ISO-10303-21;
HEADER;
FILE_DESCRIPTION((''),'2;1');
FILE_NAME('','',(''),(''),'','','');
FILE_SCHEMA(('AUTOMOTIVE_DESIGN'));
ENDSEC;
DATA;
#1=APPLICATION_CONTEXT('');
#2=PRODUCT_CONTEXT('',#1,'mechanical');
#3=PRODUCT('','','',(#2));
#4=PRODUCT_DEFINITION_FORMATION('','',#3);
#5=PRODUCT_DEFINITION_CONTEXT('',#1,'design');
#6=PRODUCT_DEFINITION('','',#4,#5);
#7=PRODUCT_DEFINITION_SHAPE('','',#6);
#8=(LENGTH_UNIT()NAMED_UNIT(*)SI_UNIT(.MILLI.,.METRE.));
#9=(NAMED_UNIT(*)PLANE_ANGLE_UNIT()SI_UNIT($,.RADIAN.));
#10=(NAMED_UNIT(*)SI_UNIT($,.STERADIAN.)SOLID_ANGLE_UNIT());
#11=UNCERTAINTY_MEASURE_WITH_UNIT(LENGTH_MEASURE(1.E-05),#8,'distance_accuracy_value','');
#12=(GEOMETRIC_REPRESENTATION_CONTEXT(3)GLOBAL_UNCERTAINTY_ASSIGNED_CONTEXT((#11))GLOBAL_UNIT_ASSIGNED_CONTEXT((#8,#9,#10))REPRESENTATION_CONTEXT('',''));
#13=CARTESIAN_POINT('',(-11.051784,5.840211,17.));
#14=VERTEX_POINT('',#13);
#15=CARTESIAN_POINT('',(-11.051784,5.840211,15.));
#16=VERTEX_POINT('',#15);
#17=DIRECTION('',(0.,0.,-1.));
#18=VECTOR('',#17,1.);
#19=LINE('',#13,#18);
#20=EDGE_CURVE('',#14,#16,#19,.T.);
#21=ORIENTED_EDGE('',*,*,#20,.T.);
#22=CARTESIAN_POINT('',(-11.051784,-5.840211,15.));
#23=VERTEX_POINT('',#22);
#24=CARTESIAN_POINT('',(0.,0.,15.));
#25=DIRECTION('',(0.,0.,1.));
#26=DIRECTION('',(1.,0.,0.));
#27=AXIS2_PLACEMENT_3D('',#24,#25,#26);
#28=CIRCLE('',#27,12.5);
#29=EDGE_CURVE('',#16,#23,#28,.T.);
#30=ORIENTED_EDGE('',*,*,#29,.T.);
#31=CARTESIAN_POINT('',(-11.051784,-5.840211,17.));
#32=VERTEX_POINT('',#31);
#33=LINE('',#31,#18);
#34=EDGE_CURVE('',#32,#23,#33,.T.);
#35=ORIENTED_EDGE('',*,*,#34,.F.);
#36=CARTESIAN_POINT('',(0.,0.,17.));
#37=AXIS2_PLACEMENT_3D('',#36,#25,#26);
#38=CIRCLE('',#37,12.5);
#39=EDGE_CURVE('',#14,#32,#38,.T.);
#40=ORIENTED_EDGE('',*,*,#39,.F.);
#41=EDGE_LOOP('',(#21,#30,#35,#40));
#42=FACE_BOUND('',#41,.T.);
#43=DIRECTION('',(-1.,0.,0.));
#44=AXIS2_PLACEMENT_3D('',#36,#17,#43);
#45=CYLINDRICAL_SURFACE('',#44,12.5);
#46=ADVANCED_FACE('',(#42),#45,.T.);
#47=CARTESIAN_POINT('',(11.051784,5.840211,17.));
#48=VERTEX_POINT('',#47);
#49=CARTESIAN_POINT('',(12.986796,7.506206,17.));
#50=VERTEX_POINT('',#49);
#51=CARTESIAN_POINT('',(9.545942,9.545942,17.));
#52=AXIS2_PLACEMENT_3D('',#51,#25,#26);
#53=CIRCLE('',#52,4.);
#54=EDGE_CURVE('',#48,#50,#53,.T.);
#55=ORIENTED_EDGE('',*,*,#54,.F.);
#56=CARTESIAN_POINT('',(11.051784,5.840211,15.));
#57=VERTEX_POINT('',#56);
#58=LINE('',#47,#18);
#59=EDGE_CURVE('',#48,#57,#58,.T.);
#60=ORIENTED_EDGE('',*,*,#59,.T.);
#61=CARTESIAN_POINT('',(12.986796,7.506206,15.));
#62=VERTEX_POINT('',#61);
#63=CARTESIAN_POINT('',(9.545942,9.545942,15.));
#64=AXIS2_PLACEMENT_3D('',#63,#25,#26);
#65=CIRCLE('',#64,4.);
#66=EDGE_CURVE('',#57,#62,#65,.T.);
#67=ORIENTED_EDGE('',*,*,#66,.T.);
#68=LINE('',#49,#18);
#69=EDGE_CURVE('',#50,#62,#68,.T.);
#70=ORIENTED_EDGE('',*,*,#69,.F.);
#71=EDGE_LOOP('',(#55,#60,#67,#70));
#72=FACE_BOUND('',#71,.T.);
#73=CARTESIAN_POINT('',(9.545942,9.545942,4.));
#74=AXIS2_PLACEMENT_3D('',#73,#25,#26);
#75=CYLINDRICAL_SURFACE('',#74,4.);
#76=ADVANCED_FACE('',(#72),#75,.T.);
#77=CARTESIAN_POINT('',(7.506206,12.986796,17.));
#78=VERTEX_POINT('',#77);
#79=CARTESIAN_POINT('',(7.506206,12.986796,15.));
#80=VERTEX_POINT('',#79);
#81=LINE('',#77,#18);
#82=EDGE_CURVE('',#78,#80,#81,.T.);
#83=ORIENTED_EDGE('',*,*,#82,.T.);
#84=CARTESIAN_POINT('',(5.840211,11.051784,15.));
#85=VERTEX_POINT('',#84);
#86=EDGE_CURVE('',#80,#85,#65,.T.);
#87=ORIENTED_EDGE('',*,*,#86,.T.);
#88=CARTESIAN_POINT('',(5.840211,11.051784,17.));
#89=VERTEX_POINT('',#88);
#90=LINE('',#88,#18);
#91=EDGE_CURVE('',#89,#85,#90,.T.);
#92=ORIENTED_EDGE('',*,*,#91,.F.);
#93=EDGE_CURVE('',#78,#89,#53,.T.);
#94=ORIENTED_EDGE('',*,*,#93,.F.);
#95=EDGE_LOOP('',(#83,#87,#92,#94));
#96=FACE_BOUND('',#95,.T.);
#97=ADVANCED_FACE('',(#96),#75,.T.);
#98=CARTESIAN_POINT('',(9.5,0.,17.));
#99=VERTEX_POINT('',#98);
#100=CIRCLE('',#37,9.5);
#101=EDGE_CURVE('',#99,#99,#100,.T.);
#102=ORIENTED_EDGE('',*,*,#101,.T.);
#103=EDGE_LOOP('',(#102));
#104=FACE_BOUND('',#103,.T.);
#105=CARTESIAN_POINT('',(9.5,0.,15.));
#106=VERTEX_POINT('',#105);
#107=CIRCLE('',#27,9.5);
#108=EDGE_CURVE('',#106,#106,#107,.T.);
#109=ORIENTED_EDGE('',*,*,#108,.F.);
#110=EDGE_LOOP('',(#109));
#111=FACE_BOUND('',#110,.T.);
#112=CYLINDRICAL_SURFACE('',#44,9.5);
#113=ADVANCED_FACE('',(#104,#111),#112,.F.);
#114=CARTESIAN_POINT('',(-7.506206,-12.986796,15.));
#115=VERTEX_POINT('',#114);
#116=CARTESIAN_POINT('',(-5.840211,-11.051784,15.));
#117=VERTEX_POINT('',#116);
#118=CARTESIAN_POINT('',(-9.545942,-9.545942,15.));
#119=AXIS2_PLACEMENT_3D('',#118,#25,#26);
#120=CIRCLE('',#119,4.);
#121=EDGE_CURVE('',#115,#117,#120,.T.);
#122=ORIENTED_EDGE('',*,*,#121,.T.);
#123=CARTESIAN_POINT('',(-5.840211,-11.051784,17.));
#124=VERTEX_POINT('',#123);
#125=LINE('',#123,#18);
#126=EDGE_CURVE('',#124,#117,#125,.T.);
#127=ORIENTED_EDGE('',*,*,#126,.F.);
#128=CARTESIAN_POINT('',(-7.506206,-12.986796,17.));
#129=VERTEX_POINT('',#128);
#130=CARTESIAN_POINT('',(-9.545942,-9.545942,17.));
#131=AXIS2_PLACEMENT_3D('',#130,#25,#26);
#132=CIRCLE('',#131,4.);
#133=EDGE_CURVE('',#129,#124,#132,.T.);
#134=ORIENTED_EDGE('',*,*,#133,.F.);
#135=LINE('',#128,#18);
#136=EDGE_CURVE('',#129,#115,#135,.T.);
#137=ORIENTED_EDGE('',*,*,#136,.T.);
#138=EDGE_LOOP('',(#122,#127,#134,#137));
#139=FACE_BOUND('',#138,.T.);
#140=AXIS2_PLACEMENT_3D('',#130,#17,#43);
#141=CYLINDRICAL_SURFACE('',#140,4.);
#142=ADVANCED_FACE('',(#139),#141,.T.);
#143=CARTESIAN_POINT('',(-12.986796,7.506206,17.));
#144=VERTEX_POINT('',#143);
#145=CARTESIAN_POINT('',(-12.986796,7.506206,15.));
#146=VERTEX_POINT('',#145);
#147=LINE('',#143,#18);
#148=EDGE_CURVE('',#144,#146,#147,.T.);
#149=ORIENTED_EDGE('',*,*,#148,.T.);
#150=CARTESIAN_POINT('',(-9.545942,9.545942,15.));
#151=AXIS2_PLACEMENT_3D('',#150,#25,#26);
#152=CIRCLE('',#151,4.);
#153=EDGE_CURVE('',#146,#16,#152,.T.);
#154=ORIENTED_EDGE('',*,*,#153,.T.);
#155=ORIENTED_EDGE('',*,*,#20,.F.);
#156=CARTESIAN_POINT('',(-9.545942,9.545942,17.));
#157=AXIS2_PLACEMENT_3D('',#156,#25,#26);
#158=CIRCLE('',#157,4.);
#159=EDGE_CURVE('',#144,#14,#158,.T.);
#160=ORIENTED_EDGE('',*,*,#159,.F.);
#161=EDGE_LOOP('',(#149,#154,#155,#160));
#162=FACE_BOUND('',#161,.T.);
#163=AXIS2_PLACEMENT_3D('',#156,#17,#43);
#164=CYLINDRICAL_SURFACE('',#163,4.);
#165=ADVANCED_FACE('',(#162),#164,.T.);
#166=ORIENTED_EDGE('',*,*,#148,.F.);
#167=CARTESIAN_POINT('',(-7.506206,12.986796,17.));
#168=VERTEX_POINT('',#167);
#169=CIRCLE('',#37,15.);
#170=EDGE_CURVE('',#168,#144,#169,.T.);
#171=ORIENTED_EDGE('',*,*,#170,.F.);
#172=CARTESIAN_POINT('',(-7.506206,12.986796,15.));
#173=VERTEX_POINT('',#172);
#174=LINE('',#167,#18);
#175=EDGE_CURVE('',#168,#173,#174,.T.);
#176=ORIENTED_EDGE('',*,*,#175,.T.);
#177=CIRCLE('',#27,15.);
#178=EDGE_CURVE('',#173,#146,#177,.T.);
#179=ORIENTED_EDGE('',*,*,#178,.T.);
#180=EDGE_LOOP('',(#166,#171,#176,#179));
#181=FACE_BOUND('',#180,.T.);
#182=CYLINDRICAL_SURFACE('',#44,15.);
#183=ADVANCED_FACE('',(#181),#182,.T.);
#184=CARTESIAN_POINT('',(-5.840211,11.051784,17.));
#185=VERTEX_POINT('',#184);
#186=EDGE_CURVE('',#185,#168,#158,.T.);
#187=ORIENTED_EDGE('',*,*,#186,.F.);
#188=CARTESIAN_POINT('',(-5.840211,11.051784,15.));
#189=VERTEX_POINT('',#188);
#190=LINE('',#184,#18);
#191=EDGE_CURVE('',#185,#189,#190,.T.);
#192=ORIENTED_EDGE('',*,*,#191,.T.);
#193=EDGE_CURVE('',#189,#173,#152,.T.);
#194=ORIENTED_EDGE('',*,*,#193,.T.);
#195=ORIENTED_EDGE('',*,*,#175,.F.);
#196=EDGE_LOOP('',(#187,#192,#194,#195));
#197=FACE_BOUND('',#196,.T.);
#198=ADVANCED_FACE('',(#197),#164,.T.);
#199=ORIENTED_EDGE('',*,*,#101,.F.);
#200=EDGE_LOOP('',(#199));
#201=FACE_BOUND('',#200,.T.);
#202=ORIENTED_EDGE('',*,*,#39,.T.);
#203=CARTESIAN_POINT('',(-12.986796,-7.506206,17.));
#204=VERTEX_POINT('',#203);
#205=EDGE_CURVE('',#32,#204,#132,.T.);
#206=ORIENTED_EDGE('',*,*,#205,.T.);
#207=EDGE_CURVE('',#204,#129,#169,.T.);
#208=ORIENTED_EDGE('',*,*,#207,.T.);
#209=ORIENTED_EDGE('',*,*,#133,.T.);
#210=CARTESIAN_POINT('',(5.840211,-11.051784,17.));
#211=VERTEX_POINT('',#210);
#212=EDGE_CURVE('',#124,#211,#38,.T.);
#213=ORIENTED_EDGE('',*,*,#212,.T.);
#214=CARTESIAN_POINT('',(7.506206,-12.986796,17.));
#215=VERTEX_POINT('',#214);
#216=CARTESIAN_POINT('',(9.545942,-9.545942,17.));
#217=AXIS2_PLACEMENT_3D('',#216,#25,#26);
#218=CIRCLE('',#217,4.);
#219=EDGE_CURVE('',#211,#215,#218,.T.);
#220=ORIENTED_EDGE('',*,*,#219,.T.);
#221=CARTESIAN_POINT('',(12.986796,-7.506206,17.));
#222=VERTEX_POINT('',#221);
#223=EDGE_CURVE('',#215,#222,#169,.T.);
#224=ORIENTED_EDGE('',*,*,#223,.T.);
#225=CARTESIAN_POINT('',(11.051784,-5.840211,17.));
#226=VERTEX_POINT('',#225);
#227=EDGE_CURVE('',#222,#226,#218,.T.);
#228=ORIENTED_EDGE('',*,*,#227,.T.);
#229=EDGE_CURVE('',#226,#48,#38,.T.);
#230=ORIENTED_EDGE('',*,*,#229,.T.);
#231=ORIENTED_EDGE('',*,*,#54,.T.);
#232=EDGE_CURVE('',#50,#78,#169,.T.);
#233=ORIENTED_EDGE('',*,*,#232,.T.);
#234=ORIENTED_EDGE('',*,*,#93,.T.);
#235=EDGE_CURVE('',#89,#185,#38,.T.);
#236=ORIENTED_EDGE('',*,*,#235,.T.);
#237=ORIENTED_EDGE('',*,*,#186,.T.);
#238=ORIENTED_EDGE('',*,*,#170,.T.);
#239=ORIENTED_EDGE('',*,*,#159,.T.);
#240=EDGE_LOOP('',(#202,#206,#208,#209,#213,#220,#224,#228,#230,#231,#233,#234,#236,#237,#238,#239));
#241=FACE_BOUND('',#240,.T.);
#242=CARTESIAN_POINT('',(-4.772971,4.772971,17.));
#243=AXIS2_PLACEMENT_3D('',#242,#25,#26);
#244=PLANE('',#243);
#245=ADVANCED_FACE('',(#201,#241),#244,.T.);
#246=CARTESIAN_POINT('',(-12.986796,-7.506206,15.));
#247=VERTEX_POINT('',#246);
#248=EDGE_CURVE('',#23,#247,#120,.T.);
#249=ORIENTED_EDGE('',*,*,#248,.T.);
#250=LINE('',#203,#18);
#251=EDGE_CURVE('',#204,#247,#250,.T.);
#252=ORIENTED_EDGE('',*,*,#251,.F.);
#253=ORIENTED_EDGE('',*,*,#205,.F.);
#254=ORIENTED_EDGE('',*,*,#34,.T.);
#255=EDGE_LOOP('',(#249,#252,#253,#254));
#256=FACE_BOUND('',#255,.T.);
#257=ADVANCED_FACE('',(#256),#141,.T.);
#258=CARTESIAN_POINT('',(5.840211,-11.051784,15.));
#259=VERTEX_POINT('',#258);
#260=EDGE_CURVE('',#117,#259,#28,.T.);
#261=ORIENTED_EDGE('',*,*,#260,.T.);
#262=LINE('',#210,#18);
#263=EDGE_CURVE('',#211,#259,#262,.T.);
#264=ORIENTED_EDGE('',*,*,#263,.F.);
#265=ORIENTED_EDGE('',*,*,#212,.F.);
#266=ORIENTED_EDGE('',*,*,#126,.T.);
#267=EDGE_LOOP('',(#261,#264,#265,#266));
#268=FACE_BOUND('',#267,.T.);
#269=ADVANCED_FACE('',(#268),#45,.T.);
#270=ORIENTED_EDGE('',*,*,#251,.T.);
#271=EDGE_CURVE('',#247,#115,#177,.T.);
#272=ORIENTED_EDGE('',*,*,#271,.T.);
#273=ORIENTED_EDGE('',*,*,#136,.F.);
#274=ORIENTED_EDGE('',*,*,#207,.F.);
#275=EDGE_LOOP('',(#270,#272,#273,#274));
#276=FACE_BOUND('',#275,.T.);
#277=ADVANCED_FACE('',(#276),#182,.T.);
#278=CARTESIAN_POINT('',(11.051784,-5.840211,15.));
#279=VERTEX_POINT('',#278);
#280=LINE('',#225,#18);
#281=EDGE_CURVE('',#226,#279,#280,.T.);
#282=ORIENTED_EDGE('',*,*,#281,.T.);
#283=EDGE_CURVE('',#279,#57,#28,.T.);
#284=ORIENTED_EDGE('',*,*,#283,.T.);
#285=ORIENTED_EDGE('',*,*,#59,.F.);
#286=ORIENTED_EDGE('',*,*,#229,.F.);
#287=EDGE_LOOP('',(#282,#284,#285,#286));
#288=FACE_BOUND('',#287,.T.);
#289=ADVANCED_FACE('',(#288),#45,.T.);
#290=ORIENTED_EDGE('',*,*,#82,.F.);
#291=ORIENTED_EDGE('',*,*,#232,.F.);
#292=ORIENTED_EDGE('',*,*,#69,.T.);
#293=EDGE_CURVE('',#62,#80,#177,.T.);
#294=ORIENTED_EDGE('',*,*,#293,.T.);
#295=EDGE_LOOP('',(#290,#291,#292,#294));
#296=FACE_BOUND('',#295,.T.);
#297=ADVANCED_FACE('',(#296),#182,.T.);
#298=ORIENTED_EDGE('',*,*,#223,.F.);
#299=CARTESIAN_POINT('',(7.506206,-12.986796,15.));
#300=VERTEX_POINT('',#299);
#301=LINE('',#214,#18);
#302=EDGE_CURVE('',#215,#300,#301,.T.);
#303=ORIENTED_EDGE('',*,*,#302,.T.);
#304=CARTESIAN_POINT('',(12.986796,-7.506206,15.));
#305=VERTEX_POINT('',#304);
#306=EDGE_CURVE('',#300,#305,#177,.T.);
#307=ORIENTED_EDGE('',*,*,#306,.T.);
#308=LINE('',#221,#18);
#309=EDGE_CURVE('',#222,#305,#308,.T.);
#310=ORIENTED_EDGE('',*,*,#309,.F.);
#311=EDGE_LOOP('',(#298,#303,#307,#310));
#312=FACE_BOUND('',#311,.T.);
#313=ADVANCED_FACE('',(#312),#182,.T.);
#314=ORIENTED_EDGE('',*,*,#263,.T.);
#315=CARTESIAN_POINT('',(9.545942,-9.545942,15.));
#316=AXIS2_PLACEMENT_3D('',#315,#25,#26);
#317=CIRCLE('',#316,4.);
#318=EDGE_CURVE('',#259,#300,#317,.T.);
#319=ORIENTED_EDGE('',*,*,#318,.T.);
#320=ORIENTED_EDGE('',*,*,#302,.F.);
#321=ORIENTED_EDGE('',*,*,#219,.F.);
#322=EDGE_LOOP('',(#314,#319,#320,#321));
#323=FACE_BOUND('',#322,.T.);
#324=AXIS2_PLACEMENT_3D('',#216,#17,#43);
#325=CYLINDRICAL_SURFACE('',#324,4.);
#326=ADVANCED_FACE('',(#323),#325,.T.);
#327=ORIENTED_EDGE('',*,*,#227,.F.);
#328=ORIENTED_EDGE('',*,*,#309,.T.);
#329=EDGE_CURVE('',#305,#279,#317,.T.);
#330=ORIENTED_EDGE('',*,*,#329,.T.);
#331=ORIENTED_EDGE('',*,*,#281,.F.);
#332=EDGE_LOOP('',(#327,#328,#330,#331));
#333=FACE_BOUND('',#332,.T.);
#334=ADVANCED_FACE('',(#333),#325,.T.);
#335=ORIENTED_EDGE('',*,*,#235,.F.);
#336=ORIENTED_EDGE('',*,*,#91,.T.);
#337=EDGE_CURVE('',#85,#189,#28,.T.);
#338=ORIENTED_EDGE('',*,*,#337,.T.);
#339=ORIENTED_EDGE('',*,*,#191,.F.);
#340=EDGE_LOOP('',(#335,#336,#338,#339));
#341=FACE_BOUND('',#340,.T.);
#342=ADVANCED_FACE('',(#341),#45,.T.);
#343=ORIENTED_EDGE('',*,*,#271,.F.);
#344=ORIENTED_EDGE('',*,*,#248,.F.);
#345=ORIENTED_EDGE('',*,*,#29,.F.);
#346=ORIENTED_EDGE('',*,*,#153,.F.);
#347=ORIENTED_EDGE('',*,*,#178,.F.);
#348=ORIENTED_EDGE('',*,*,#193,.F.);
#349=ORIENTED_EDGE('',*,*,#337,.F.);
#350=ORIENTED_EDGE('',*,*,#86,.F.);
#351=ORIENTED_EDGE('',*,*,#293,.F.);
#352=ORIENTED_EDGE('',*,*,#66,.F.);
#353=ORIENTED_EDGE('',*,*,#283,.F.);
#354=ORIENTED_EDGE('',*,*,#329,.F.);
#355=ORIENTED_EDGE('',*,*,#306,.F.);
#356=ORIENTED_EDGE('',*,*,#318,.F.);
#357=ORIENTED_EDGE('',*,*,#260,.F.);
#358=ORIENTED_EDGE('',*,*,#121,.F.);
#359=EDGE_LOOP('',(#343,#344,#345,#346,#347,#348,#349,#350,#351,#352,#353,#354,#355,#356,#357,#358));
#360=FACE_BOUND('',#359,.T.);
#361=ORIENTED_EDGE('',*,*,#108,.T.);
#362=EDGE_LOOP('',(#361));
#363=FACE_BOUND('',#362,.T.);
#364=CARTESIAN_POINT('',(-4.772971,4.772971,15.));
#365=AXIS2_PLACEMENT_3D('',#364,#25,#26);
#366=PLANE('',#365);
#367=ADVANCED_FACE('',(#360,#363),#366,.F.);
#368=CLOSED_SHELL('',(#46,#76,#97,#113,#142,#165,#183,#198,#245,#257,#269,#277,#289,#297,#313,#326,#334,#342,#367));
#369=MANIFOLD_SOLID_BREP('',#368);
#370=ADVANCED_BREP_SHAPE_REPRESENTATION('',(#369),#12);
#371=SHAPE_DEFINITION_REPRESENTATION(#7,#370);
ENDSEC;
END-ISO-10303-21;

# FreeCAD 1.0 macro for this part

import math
import FreeCAD as App
import Part
import Sketcher

V = App.Vector

doc = App.newDocument("Part")
body = doc.addObject("PartDesign::Body", "Body")

# Sketch on XY plane
sketch1 = body.newObject("Sketcher::SketchObject", "Sketch")
sketch1.AttachmentSupport = (doc.getObject("XY_Plane"), [""])
sketch1.MapMode = "FlatFace"
sketch1.AttachmentOffset = App.Placement(V(0, 0, 15), App.Rotation())
sketch1.addGeometry(Part.Circle(V(9.545942, 9.545942, 0), V(0, 0, 1), 4), False)
sketch1.addConstraint([
    Sketcher.Constraint("Diameter", 0, 8.0),
    Sketcher.Constraint("DistanceX", -1, 1, 0, 3, 9.545942),
    Sketcher.Constraint("DistanceY", -1, 1, 0, 3, 9.545942),
])
pad1 = body.newObject("PartDesign::Pad", "Pad")
pad1.Profile = sketch1
pad1.Length = 11
pad1.Reversed = True
body2 = doc.addObject("PartDesign::Body", "Body001")

# Sketch on XY plane
sketch2 = body2.newObject("Sketcher::SketchObject", "Sketch001")
sketch2.AttachmentSupport = (doc.getObject("XY_Plane001"), [""])
sketch2.MapMode = "FlatFace"
sketch2.AttachmentOffset = App.Placement(V(0, 0, 15), App.Rotation())
sketch2.addGeometry(Part.Circle(V(-9.545942, 9.545942, 0), V(0, 0, 1), 4), False)
sketch2.addConstraint([
    Sketcher.Constraint("Diameter", 0, 8.0),
    Sketcher.Constraint("DistanceX", 0, 3, -1, 1, 9.545942),
    Sketcher.Constraint("DistanceY", -1, 1, 0, 3, 9.545942),
])
pad2 = body2.newObject("PartDesign::Pad", "Pad001")
pad2.Profile = sketch2
pad2.Length = 11
pad2.Reversed = True
body3 = doc.addObject("PartDesign::Body", "Body002")

# Sketch on XY plane
sketch3 = body3.newObject("Sketcher::SketchObject", "Sketch002")
sketch3.AttachmentSupport = (doc.getObject("XY_Plane002"), [""])
sketch3.MapMode = "FlatFace"
sketch3.AttachmentOffset = App.Placement(V(0, 0, 15), App.Rotation())
sketch3.addGeometry(Part.Circle(V(-9.545942, -9.545942, 0), V(0, 0, 1), 4), False)
sketch3.addConstraint([
    Sketcher.Constraint("Diameter", 0, 8.0),
    Sketcher.Constraint("DistanceX", 0, 3, -1, 1, 9.545942),
    Sketcher.Constraint("DistanceY", 0, 3, -1, 1, 9.545942),
])
pad3 = body3.newObject("PartDesign::Pad", "Pad002")
pad3.Profile = sketch3
pad3.Length = 11
pad3.Reversed = True
body4 = doc.addObject("PartDesign::Body", "Body003")

# Sketch on XY plane
sketch4 = body4.newObject("Sketcher::SketchObject", "Sketch003")
sketch4.AttachmentSupport = (doc.getObject("XY_Plane003"), [""])
sketch4.MapMode = "FlatFace"
sketch4.AttachmentOffset = App.Placement(V(0, 0, 15), App.Rotation())
sketch4.addGeometry(Part.Circle(V(9.545942, -9.545942, 0), V(0, 0, 1), 4), False)
sketch4.addConstraint([
    Sketcher.Constraint("Diameter", 0, 8.0),
    Sketcher.Constraint("DistanceX", -1, 1, 0, 3, 9.545942),
    Sketcher.Constraint("DistanceY", 0, 3, -1, 1, 9.545942),
])
pad4 = body4.newObject("PartDesign::Pad", "Pad003")
pad4.Profile = sketch4
pad4.Length = 11
pad4.Reversed = True
body.AllowCompound = True
doc.recompute()

boolean = body.newObject("PartDesign::Boolean", "Boolean")
boolean.Type = "Fuse"
boolean.addObjects([body2])
doc.recompute()

boolean2 = body.newObject("PartDesign::Boolean", "Boolean001")
boolean2.Type = "Fuse"
boolean2.addObjects([body3])
doc.recompute()

boolean3 = body.newObject("PartDesign::Boolean", "Boolean002")
boolean3.Type = "Fuse"
boolean3.addObjects([body4])

# Sketch on XY plane
sketch5 = body.newObject("Sketcher::SketchObject", "Sketch004")
sketch5.AttachmentSupport = (doc.getObject("XY_Plane"), [""])
sketch5.MapMode = "FlatFace"
sketch5.AttachmentOffset = App.Placement(V(0, 0, 17), App.Rotation())
sketch5.addGeometry([
    Part.ArcOfCircle(Part.Circle(V(-9.545942, 9.545942, 0), V(0, 0, 1), 4), math.radians(22.11462), math.radians(59.340576)),  # 0
    Part.ArcOfCircle(Part.Circle(V(0, 0, 0), V(0, 0, 1), 15), math.radians(120.027377), math.radians(149.972623)),  # 1
    Part.ArcOfCircle(Part.Circle(V(-9.545942, 9.545942, 0), V(0, 0, 1), 4), math.radians(-149.340576), math.radians(-112.11462)),  # 2
    Part.ArcOfCircle(Part.Circle(V(0, 0, 0), V(0, 0, 1), 12.5), math.radians(152.14621), math.radians(207.85379)),  # 3
    Part.ArcOfCircle(Part.Circle(V(-9.545942, -9.545942, 0), V(0, 0, 1), 4), math.radians(112.11462), math.radians(149.340576)),  # 4
    Part.ArcOfCircle(Part.Circle(V(0, 0, 0), V(0, 0, 1), 15), math.radians(-149.972623), math.radians(-120.027377)),  # 5
    Part.ArcOfCircle(Part.Circle(V(-9.545942, -9.545942, 0), V(0, 0, 1), 4), math.radians(-59.340576), math.radians(-22.11462)),  # 6
    Part.ArcOfCircle(Part.Circle(V(0, 0, 0), V(0, 0, 1), 12.5), math.radians(-117.85379), math.radians(-62.14621)),  # 7
    Part.ArcOfCircle(Part.Circle(V(9.545942, -9.545942, 0), V(0, 0, 1), 4), math.radians(-157.88538), math.radians(-120.659424)),  # 8
    Part.ArcOfCircle(Part.Circle(V(0, 0, 0), V(0, 0, 1), 15), math.radians(-59.972623), math.radians(-30.027377)),  # 9
    Part.ArcOfCircle(Part.Circle(V(9.545942, -9.545942, 0), V(0, 0, 1), 4), math.radians(30.659424), math.radians(67.88538)),  # 10
    Part.ArcOfCircle(Part.Circle(V(0, 0, 0), V(0, 0, 1), 12.5), math.radians(-27.85379), math.radians(27.85379)),  # 11
    Part.ArcOfCircle(Part.Circle(V(9.545942, 9.545942, 0), V(0, 0, 1), 4), math.radians(-67.88538), math.radians(-30.659424)),  # 12
    Part.ArcOfCircle(Part.Circle(V(0, 0, 0), V(0, 0, 1), 15), math.radians(30.027377), math.radians(59.972623)),  # 13
    Part.ArcOfCircle(Part.Circle(V(9.545942, 9.545942, 0), V(0, 0, 1), 4), math.radians(120.659424), math.radians(157.88538)),  # 14
    Part.ArcOfCircle(Part.Circle(V(0, 0, 0), V(0, 0, 1), 12.5), math.radians(62.14621), math.radians(117.85379)),  # 15
    Part.Circle(V(0, 0, 0), V(0, 0, 1), 9.5),  # 16
], False)
sketch5.addConstraint([
    Sketcher.Constraint("Coincident", 0, 2, 1, 1),
    Sketcher.Constraint("Coincident", 1, 2, 2, 1),
    Sketcher.Constraint("Coincident", 2, 2, 3, 1),
    Sketcher.Constraint("Coincident", 3, 2, 4, 1),
    Sketcher.Constraint("Coincident", 4, 2, 5, 1),
    Sketcher.Constraint("Coincident", 5, 2, 6, 1),
    Sketcher.Constraint("Coincident", 6, 2, 7, 1),
    Sketcher.Constraint("Coincident", 7, 2, 8, 1),
    Sketcher.Constraint("Coincident", 8, 2, 9, 1),
    Sketcher.Constraint("Coincident", 9, 2, 10, 1),
    Sketcher.Constraint("Coincident", 10, 2, 11, 1),
    Sketcher.Constraint("Coincident", 11, 2, 12, 1),
    Sketcher.Constraint("Coincident", 12, 2, 13, 1),
    Sketcher.Constraint("Coincident", 13, 2, 14, 1),
    Sketcher.Constraint("Coincident", 14, 2, 15, 1),
    Sketcher.Constraint("Coincident", 15, 2, 0, 1),
    Sketcher.Constraint("Coincident", 1, 3, -1, 1),
    Sketcher.Constraint("Coincident", 3, 3, -1, 1),
    Sketcher.Constraint("Coincident", 5, 3, -1, 1),
    Sketcher.Constraint("Coincident", 7, 3, -1, 1),
    Sketcher.Constraint("Coincident", 9, 3, -1, 1),
    Sketcher.Constraint("Coincident", 11, 3, -1, 1),
    Sketcher.Constraint("Coincident", 13, 3, -1, 1),
    Sketcher.Constraint("Coincident", 15, 3, -1, 1),
    Sketcher.Constraint("Coincident", 16, 3, -1, 1),
    Sketcher.Constraint("Coincident", 2, 3, 0, 3),
    Sketcher.Constraint("Coincident", 6, 3, 4, 3),
    Sketcher.Constraint("Coincident", 10, 3, 8, 3),
    Sketcher.Constraint("Coincident", 14, 3, 12, 3),
    Sketcher.Constraint("Equal", 0, 2),
    Sketcher.Constraint("Equal", 2, 4),
    Sketcher.Constraint("Equal", 1, 5),
    Sketcher.Constraint("Equal", 4, 6),
    Sketcher.Constraint("Equal", 3, 7),
    Sketcher.Constraint("Equal", 6, 8),
    Sketcher.Constraint("Equal", 5, 9),
    Sketcher.Constraint("Equal", 8, 10),
    Sketcher.Constraint("Equal", 7, 11),
    Sketcher.Constraint("Equal", 10, 12),
    Sketcher.Constraint("Equal", 9, 13),
    Sketcher.Constraint("Equal", 12, 14),
    Sketcher.Constraint("Equal", 11, 15),
    Sketcher.Constraint("Symmetric", 0, 3, 8, 3, -1, 1),
    Sketcher.Constraint("Symmetric", 4, 3, 12, 3, -1, 1),
    Sketcher.Constraint("Symmetric", 4, 3, 8, 3, -2),
    Sketcher.Constraint("Diameter", 16, 19.0),
    Sketcher.Constraint("Radius", 0, 4.0),
    Sketcher.Constraint("Radius", 1, 15.0),
    Sketcher.Constraint("Radius", 3, 12.5),
    Sketcher.Constraint("DistanceX", 0, 3, -1, 1, 9.545942),
    Sketcher.Constraint("DistanceY", -1, 1, 0, 3, 9.545942),
])
pad5 = body.newObject("PartDesign::Pad", "Pad004")
pad5.Profile = sketch5
pad5.Length = 2
pad5.Reversed = True

# Sketch on XY plane
sketch6 = body.newObject("Sketcher::SketchObject", "Sketch005")
sketch6.AttachmentSupport = (doc.getObject("XY_Plane"), [""])
sketch6.MapMode = "FlatFace"
sketch6.AttachmentOffset = App.Placement(V(0, 0, 4), App.Rotation())
sketch6.addGeometry(Part.Circle(V(0, 0, 0), V(0, 0, 1), 19.19116), False)
sketch6.addConstraint([
    Sketcher.Constraint("Coincident", 0, 3, -1, 1),
    Sketcher.Constraint("Diameter", 0, 38.38232),
])
pocket1 = body.newObject("PartDesign::Pocket", "Pocket")
pocket1.Profile = sketch6
pocket1.Length = 11
pocket1.Reversed = True

doc.recompute()
